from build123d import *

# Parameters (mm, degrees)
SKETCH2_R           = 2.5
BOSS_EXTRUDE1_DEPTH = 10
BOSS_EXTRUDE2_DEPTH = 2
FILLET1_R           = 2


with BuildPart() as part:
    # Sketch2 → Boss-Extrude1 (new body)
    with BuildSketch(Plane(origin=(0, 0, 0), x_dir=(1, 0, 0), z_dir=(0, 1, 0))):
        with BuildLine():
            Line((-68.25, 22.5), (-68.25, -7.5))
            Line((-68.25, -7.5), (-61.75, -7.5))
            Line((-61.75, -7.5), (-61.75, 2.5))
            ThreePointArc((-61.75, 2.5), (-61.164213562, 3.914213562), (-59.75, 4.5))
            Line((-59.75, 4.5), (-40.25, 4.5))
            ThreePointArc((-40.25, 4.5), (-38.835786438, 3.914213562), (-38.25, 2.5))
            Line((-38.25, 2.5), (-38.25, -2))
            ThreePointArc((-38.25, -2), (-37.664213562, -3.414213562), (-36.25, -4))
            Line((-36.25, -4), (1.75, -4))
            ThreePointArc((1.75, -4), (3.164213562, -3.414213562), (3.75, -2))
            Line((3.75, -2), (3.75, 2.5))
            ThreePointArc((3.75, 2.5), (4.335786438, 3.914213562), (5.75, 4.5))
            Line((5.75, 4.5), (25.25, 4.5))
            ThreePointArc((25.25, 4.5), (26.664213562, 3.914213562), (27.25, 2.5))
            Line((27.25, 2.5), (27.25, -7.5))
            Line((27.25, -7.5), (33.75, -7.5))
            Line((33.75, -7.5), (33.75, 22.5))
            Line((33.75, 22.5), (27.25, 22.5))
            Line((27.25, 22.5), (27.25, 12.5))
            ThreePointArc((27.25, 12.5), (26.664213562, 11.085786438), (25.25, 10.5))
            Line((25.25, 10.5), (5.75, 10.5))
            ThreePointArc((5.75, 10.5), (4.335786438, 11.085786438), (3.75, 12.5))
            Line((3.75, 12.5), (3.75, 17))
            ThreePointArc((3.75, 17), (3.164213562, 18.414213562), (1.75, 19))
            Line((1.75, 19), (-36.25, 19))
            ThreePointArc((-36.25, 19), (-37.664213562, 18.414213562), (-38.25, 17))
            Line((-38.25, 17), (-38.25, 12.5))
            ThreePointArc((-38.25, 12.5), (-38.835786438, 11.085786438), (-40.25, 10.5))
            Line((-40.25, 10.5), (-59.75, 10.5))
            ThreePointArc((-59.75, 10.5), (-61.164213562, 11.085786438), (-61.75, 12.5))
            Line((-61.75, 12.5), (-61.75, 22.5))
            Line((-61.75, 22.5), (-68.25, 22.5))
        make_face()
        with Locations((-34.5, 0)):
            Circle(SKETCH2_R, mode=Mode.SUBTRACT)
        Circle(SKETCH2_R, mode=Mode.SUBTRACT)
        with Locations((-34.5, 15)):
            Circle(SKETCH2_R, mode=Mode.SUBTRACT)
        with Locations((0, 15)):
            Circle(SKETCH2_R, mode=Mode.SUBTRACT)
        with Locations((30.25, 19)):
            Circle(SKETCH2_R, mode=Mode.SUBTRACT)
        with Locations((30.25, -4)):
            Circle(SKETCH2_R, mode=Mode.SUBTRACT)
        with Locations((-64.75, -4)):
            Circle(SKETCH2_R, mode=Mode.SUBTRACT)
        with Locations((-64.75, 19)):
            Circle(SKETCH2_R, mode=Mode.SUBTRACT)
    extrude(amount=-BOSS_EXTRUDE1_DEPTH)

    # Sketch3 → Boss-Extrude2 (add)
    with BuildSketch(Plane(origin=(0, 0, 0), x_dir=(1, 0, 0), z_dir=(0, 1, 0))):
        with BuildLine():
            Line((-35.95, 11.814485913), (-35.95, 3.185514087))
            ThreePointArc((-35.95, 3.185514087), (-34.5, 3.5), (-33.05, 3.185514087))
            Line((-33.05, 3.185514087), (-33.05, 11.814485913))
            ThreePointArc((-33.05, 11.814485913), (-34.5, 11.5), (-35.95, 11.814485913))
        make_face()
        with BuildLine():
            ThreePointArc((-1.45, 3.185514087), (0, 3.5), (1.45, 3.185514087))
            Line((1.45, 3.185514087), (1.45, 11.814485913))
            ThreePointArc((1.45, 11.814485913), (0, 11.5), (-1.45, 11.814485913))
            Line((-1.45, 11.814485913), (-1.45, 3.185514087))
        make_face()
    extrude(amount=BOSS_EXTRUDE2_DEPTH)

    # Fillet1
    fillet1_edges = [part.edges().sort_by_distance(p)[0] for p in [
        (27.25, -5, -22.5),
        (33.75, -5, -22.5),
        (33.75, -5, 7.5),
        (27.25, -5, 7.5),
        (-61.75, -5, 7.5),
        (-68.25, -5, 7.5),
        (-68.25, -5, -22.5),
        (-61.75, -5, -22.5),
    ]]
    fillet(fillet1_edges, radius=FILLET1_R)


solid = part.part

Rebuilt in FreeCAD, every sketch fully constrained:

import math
import FreeCAD as App
import Part
import Sketcher
from FreeCAD import Vector
Q = App.Units.Quantity


def edges_at(feature, points):
    """Names of the edges that pass closest to the given points."""
    edges = feature.Shape.Edges
    near = lambda p: min(range(len(edges)), key=lambda i: edges[i].distToShape(Part.Vertex(*p))[0])
    return sorted({f"Edge{near(p) + 1}" for p in points})

doc = App.newDocument("Part")
body = doc.addObject("PartDesign::Body", "Body")

sketch1 = body.newObject("Sketcher::SketchObject", "Sketch")
sketch1.AttachmentSupport = (doc.getObject("XZ_Plane"), [""])
sketch1.MapMode = "FlatFace"
sketch1.addGeometry([
    Part.LineSegment(Vector(-68.2, -22.5, 0), Vector(-68.2, 7.5, 0)),
    Part.LineSegment(Vector(-68.2, 7.5, 0), Vector(-61.8, 7.5, 0)),
    Part.LineSegment(Vector(-61.8, 7.5, 0), Vector(-61.8, -2.5, 0)),
    Part.ArcOfCircle(Part.Circle(Vector(-59.7, -2.5, 0), Vector(0, 0, 1), 2), math.radians(-180), math.radians(-90)),
    Part.LineSegment(Vector(-59.8, -4.5, 0), Vector(-40.2, -4.5, 0)),
    Part.ArcOfCircle(Part.Circle(Vector(-40.3, -2.5, 0), Vector(0, 0, 1), 2), math.radians(-90), math.radians(0)),
    Part.LineSegment(Vector(-38.2, -2.5, 0), Vector(-38.2, 2, 0)),
    Part.ArcOfCircle(Part.Circle(Vector(-36.2, 2, 0), Vector(0, 0, 1), 2), math.radians(90), math.radians(180)),
    Part.LineSegment(Vector(-36.2, 4, 0), Vector(1.8, 4, 0)),
    Part.ArcOfCircle(Part.Circle(Vector(1.7, 2, 0), Vector(0, 0, 1), 2), math.radians(0), math.radians(90)),
    Part.LineSegment(Vector(3.8, 2, 0), Vector(3.8, -2.5, 0)),
    Part.ArcOfCircle(Part.Circle(Vector(5.8, -2.5, 0), Vector(0, 0, 1), 2), math.radians(-180), math.radians(-90)),
    Part.LineSegment(Vector(5.8, -4.5, 0), Vector(25.2, -4.5, 0)),
    Part.ArcOfCircle(Part.Circle(Vector(25.2, -2.5, 0), Vector(0, 0, 1), 2), math.radians(-90), math.radians(0)),
    Part.LineSegment(Vector(27.2, -2.5, 0), Vector(27.2, 7.5, 0)),
    Part.LineSegment(Vector(27.2, 7.5, 0), Vector(33.8, 7.5, 0)),
    Part.LineSegment(Vector(33.8, 7.5, 0), Vector(33.8, -22.5, 0)),
    Part.LineSegment(Vector(33.8, -22.5, 0), Vector(27.2, -22.5, 0)),
    Part.LineSegment(Vector(27.2, -22.5, 0), Vector(27.2, -12.5, 0)),
    Part.ArcOfCircle(Part.Circle(Vector(25.2, -12.5, 0), Vector(0, 0, 1), 2), math.radians(0), math.radians(90)),
    Part.LineSegment(Vector(25.2, -10.5, 0), Vector(5.8, -10.5, 0)),
    Part.ArcOfCircle(Part.Circle(Vector(5.8, -12.5, 0), Vector(0, 0, 1), 2), math.radians(90), math.radians(180)),
    Part.LineSegment(Vector(3.8, -12.5, 0), Vector(3.8, -17, 0)),
    Part.ArcOfCircle(Part.Circle(Vector(1.7, -17, 0), Vector(0, 0, 1), 2), math.radians(-90), math.radians(0)),
    Part.LineSegment(Vector(1.8, -19, 0), Vector(-36.2, -19, 0)),
    Part.ArcOfCircle(Part.Circle(Vector(-36.2, -17, 0), Vector(0, 0, 1), 2), math.radians(-180), math.radians(-90)),
    Part.LineSegment(Vector(-38.2, -17, 0), Vector(-38.2, -12.5, 0)),
    Part.ArcOfCircle(Part.Circle(Vector(-40.3, -12.5, 0), Vector(0, 0, 1), 2), math.radians(0), math.radians(90)),
    Part.LineSegment(Vector(-40.2, -10.5, 0), Vector(-59.8, -10.5, 0)),
    Part.ArcOfCircle(Part.Circle(Vector(-59.7, -12.5, 0), Vector(0, 0, 1), 2), math.radians(90), math.radians(180)),
    Part.LineSegment(Vector(-61.8, -12.5, 0), Vector(-61.8, -22.5, 0)),
    Part.LineSegment(Vector(-61.8, -22.5, 0), Vector(-68.2, -22.5, 0)),
    Part.Circle(Vector(-64.8, 4, 0), Vector(0, 0, 1), 2.5),
    Part.Circle(Vector(-34.5, 0, 0), Vector(0, 0, 1), 2.5),
    Part.Circle(Vector(0, 0, 0), Vector(0, 0, 1), 2.5),
    Part.Circle(Vector(30.2, 4, 0), Vector(0, 0, 1), 2.5),
    Part.Circle(Vector(-64.8, -19, 0), Vector(0, 0, 1), 2.5),
    Part.Circle(Vector(-34.5, -15, 0), Vector(0, 0, 1), 2.5),
    Part.Circle(Vector(0, -15, 0), Vector(0, 0, 1), 2.5),
    Part.Circle(Vector(30.2, -19, 0), Vector(0, 0, 1), 2.5),
], False)
sketch1.addConstraint([
    Sketcher.Constraint("Coincident", 0, 2, 1, 1),
    Sketcher.Constraint("Coincident", 1, 2, 2, 1),
    Sketcher.Constraint("Tangent", 2, 2, 3, 1),
    Sketcher.Constraint("Tangent", 3, 2, 4, 1),
    Sketcher.Constraint("Tangent", 4, 2, 5, 1),
    Sketcher.Constraint("Tangent", 5, 2, 6, 1),
    Sketcher.Constraint("Tangent", 6, 2, 7, 2),
    Sketcher.Constraint("Tangent", 7, 1, 8, 1),
    Sketcher.Constraint("Tangent", 8, 2, 9, 2),
    Sketcher.Constraint("Tangent", 9, 1, 10, 1),
    Sketcher.Constraint("Tangent", 10, 2, 11, 1),
    Sketcher.Constraint("Tangent", 11, 2, 12, 1),
    Sketcher.Constraint("Tangent", 12, 2, 13, 1),
    Sketcher.Constraint("Tangent", 13, 2, 14, 1),
    Sketcher.Constraint("Coincident", 14, 2, 15, 1),
    Sketcher.Constraint("Coincident", 15, 2, 16, 1),
    Sketcher.Constraint("Coincident", 16, 2, 17, 1),
    Sketcher.Constraint("Coincident", 17, 2, 18, 1),
    Sketcher.Constraint("Tangent", 18, 2, 19, 1),
    Sketcher.Constraint("Tangent", 19, 2, 20, 1),
    Sketcher.Constraint("Tangent", 20, 2, 21, 1),
    Sketcher.Constraint("Tangent", 21, 2, 22, 1),
    Sketcher.Constraint("Tangent", 22, 2, 23, 2),
    Sketcher.Constraint("Tangent", 23, 1, 24, 1),
    Sketcher.Constraint("Tangent", 24, 2, 25, 2),
    Sketcher.Constraint("Tangent", 25, 1, 26, 1),
    Sketcher.Constraint("Tangent", 26, 2, 27, 1),
    Sketcher.Constraint("Tangent", 27, 2, 28, 1),
    Sketcher.Constraint("Tangent", 28, 2, 29, 1),
    Sketcher.Constraint("Tangent", 29, 2, 30, 1),
    Sketcher.Constraint("Coincident", 30, 2, 31, 1),
    Sketcher.Constraint("Coincident", 31, 2, 0, 1),
    Sketcher.Constraint("Vertical", 0),
    Sketcher.Constraint("Horizontal", 1),
    Sketcher.Constraint("Vertical", 2),
    Sketcher.Constraint("Horizontal", 4),
    Sketcher.Constraint("Vertical", 6),
    Sketcher.Constraint("Horizontal", 8),
    Sketcher.Constraint("Vertical", 10),
    Sketcher.Constraint("Horizontal", 12),
    Sketcher.Constraint("Vertical", 14),
    Sketcher.Constraint("Horizontal", 15),
    Sketcher.Constraint("Vertical", 16),
    Sketcher.Constraint("Horizontal", 17),
    Sketcher.Constraint("Vertical", 18),
    Sketcher.Constraint("Horizontal", 20),
    Sketcher.Constraint("Vertical", 22),
    Sketcher.Constraint("Horizontal", 24),
    Sketcher.Constraint("Vertical", 26),
    Sketcher.Constraint("Horizontal", 28),
    Sketcher.Constraint("Vertical", 30),
    Sketcher.Constraint("Horizontal", 31),
    Sketcher.Constraint("Coincident", 34, 3, -1, 1),
    Sketcher.Constraint("Equal", 3, 5),
    Sketcher.Constraint("Equal", 5, 7),
    Sketcher.Constraint("Equal", 7, 9),
    Sketcher.Constraint("Equal", 9, 11),
    Sketcher.Constraint("Equal", 11, 13),
    Sketcher.Constraint("Equal", 13, 19),
    Sketcher.Constraint("Equal", 19, 21),
    Sketcher.Constraint("Equal", 21, 23),
    Sketcher.Constraint("Equal", 23, 25),
    Sketcher.Constraint("Equal", 25, 27),
    Sketcher.Constraint("Equal", 27, 29),
    Sketcher.Constraint("Equal", 32, 33),
    Sketcher.Constraint("Equal", 33, 34),
    Sketcher.Constraint("Equal", 34, 35),
    Sketcher.Constraint("Equal", 35, 36),
    Sketcher.Constraint("Equal", 36, 37),
    Sketcher.Constraint("Equal", 37, 38),
    Sketcher.Constraint("Equal", 38, 39),
    Sketcher.Constraint("PointOnObject", 33, 3, -1),
    Sketcher.Constraint("PointOnObject", 38, 3, -2),
    Sketcher.Constraint("Horizontal", 5, 3, 11, 3),
    Sketcher.Constraint("Horizontal", 21, 3, 27, 3),
    Sketcher.Constraint("Horizontal", 32, 3, 35, 3),
    Sketcher.Constraint("Horizontal", 37, 3, 38, 3),
    Sketcher.Constraint("Horizontal", 36, 3, 39, 3),
    Sketcher.Constraint("Horizontal", 35, 3, 7, 1),
    Sketcher.Constraint("Horizontal", 1, 2, 14, 2),
    Sketcher.Constraint("Horizontal", 39, 3, 23, 1),
    Sketcher.Constraint("Horizontal", 17, 2, 30, 2),
    Sketcher.Constraint("Vertical", 13, 3, 19, 3),
    Sketcher.Constraint("Vertical", 11, 3, 21, 3),
    Sketcher.Constraint("Vertical", 7, 3, 25, 3),
    Sketcher.Constraint("Vertical", 3, 3, 29, 3),
    Sketcher.Constraint("Vertical", 32, 3, 36, 3),
    Sketcher.Constraint("Vertical", 33, 3, 37, 3),
    Sketcher.Constraint("Vertical", 35, 3, 39, 3),
    Sketcher.Constraint("Equal", 4, 12),
    Sketcher.Constraint("Equal", 1, 15),
    Sketcher.Constraint("Equal", 14, 18),
    Sketcher.Constraint("Equal", 10, 22),
    Sketcher.Constraint("Diameter", 32, Q("5 mm")),
    Sketcher.Constraint("Radius", 3, Q("2 mm")),
    Sketcher.Constraint("DistanceX", 8, 1, 8, 2, Q("38 mm")),
    Sketcher.Constraint("DistanceY", 0, 1, 0, 2, Q("30 mm")),
    Sketcher.Constraint("DistanceY", 2, 2, 2, 1, Q("10 mm")),
    Sketcher.Constraint("DistanceX", 1, 1, 1, 2, Q("6.5 mm")),
    Sketcher.Constraint("DistanceX", 4, 1, 4, 2, Q("19.5 mm")),
    Sketcher.Constraint("DistanceY", 6, 1, 6, 2, Q("4.5 mm")),
    Sketcher.Constraint("DistanceY", -1, 1, 7, 3, Q("2 mm")),
    Sketcher.Constraint("DistanceY", 37, 3, -1, 1, Q("15 mm")),
    Sketcher.Constraint("DistanceX", 32, 3, 3, 3, Q("5 mm")),
    Sketcher.Constraint("DistanceX", 13, 3, 35, 3, Q("5 mm")),
    Sketcher.Constraint("DistanceX", 33, 3, -1, 1, Q("34.5 mm")),
    Sketcher.Constraint("DistanceX", 3, 3, -1, 1, Q("59.75 mm")),
])
pad1 = body.newObject("PartDesign::Pad", "Pad")
pad1.Profile = sketch1
pad1.Length = 10

sketch2 = body.newObject("Sketcher::SketchObject", "Sketch001")
sketch2.AttachmentSupport = (doc.getObject("XZ_Plane"), [""])
sketch2.MapMode = "FlatFace"
sketch2.addGeometry([
    Part.LineSegment(Vector(-36, -11.8, 0), Vector(-36, -3.2, 0)),
    Part.ArcOfCircle(Part.Circle(Vector(-34.5, 0, 0), Vector(0, 0, 1), 3.5), math.radians(-114), math.radians(-66)),
    Part.LineSegment(Vector(-33, -3.2, 0), Vector(-33, -11.8, 0)),
    Part.ArcOfCircle(Part.Circle(Vector(-34.5, -15, 0), Vector(0, 0, 1), 3.5), math.radians(66), math.radians(114)),
    Part.ArcOfCircle(Part.Circle(Vector(0, 0, 0), Vector(0, 0, 1), 3.5), math.radians(-114), math.radians(-66)),
    Part.LineSegment(Vector(1.4, -3.2, 0), Vector(1.4, -11.8, 0)),
    Part.ArcOfCircle(Part.Circle(Vector(0, -15, 0), Vector(0, 0, 1), 3.5), math.radians(66), math.radians(114)),
    Part.LineSegment(Vector(-1.4, -11.8, 0), Vector(-1.4, -3.2, 0)),
], False)
sketch2.addConstraint([
    Sketcher.Constraint("Coincident", 0, 2, 1, 1),
    Sketcher.Constraint("Coincident", 1, 2, 2, 1),
    Sketcher.Constraint("Coincident", 2, 2, 3, 1),
    Sketcher.Constraint("Coincident", 3, 2, 0, 1),
    Sketcher.Constraint("Coincident", 4, 2, 5, 1),
    Sketcher.Constraint("Coincident", 5, 2, 6, 1),
    Sketcher.Constraint("Coincident", 6, 2, 7, 1),
    Sketcher.Constraint("Coincident", 7, 2, 4, 1),
    Sketcher.Constraint("Vertical", 0),
    Sketcher.Constraint("Vertical", 2),
    Sketcher.Constraint("Vertical", 5),
    Sketcher.Constraint("Vertical", 7),
    Sketcher.Constraint("Coincident", 4, 3, -1, 1),
    Sketcher.Constraint("Equal", 1, 3),
    Sketcher.Constraint("Equal", 3, 4),
    Sketcher.Constraint("Equal", 4, 6),
    Sketcher.Constraint("Symmetric", 5, 2, 6, 2, -2),
    Sketcher.Constraint("PointOnObject", 1, 3, -1),
    Sketcher.Constraint("Horizontal", 3, 3, 6, 3),
    Sketcher.Constraint("Horizontal", 0, 2, 1, 2),
    Sketcher.Constraint("Horizontal", 2, 2, 3, 2),
    Sketcher.Constraint("Horizontal", 1, 2, 4, 2),
    Sketcher.Constraint("Radius", 1, Q("3.5 mm")),
    Sketcher.Constraint("DistanceY", 3, 3, -1, 1, Q("15 mm")),
    Sketcher.Constraint("DistanceX", 1, 3, -1, 1, Q("34.5 mm")),
    Sketcher.Constraint("DistanceX", 0, 2, 1, 2, Q("2.9 mm")),
])
pad2 = body.newObject("PartDesign::Pad", "Pad001")
pad2.Profile = sketch2
pad2.Length = 2
pad2.Reversed = True
doc.recompute()

fillet = body.newObject("PartDesign::Fillet", "Fillet")
fillet.Base = (pad2, edges_at(pad2, [
    (27.25, -5, -22.5),
    (33.75, -5, -22.5),
    (33.75, -5, 7.5),
    (27.25, -5, 7.5),
    (-61.75, -5, 7.5),
    (-68.25, -5, 7.5),
    (-68.25, -5, -22.5),
    (-61.75, -5, -22.5),
]))
fillet.Radius = 2

doc.recompute()
